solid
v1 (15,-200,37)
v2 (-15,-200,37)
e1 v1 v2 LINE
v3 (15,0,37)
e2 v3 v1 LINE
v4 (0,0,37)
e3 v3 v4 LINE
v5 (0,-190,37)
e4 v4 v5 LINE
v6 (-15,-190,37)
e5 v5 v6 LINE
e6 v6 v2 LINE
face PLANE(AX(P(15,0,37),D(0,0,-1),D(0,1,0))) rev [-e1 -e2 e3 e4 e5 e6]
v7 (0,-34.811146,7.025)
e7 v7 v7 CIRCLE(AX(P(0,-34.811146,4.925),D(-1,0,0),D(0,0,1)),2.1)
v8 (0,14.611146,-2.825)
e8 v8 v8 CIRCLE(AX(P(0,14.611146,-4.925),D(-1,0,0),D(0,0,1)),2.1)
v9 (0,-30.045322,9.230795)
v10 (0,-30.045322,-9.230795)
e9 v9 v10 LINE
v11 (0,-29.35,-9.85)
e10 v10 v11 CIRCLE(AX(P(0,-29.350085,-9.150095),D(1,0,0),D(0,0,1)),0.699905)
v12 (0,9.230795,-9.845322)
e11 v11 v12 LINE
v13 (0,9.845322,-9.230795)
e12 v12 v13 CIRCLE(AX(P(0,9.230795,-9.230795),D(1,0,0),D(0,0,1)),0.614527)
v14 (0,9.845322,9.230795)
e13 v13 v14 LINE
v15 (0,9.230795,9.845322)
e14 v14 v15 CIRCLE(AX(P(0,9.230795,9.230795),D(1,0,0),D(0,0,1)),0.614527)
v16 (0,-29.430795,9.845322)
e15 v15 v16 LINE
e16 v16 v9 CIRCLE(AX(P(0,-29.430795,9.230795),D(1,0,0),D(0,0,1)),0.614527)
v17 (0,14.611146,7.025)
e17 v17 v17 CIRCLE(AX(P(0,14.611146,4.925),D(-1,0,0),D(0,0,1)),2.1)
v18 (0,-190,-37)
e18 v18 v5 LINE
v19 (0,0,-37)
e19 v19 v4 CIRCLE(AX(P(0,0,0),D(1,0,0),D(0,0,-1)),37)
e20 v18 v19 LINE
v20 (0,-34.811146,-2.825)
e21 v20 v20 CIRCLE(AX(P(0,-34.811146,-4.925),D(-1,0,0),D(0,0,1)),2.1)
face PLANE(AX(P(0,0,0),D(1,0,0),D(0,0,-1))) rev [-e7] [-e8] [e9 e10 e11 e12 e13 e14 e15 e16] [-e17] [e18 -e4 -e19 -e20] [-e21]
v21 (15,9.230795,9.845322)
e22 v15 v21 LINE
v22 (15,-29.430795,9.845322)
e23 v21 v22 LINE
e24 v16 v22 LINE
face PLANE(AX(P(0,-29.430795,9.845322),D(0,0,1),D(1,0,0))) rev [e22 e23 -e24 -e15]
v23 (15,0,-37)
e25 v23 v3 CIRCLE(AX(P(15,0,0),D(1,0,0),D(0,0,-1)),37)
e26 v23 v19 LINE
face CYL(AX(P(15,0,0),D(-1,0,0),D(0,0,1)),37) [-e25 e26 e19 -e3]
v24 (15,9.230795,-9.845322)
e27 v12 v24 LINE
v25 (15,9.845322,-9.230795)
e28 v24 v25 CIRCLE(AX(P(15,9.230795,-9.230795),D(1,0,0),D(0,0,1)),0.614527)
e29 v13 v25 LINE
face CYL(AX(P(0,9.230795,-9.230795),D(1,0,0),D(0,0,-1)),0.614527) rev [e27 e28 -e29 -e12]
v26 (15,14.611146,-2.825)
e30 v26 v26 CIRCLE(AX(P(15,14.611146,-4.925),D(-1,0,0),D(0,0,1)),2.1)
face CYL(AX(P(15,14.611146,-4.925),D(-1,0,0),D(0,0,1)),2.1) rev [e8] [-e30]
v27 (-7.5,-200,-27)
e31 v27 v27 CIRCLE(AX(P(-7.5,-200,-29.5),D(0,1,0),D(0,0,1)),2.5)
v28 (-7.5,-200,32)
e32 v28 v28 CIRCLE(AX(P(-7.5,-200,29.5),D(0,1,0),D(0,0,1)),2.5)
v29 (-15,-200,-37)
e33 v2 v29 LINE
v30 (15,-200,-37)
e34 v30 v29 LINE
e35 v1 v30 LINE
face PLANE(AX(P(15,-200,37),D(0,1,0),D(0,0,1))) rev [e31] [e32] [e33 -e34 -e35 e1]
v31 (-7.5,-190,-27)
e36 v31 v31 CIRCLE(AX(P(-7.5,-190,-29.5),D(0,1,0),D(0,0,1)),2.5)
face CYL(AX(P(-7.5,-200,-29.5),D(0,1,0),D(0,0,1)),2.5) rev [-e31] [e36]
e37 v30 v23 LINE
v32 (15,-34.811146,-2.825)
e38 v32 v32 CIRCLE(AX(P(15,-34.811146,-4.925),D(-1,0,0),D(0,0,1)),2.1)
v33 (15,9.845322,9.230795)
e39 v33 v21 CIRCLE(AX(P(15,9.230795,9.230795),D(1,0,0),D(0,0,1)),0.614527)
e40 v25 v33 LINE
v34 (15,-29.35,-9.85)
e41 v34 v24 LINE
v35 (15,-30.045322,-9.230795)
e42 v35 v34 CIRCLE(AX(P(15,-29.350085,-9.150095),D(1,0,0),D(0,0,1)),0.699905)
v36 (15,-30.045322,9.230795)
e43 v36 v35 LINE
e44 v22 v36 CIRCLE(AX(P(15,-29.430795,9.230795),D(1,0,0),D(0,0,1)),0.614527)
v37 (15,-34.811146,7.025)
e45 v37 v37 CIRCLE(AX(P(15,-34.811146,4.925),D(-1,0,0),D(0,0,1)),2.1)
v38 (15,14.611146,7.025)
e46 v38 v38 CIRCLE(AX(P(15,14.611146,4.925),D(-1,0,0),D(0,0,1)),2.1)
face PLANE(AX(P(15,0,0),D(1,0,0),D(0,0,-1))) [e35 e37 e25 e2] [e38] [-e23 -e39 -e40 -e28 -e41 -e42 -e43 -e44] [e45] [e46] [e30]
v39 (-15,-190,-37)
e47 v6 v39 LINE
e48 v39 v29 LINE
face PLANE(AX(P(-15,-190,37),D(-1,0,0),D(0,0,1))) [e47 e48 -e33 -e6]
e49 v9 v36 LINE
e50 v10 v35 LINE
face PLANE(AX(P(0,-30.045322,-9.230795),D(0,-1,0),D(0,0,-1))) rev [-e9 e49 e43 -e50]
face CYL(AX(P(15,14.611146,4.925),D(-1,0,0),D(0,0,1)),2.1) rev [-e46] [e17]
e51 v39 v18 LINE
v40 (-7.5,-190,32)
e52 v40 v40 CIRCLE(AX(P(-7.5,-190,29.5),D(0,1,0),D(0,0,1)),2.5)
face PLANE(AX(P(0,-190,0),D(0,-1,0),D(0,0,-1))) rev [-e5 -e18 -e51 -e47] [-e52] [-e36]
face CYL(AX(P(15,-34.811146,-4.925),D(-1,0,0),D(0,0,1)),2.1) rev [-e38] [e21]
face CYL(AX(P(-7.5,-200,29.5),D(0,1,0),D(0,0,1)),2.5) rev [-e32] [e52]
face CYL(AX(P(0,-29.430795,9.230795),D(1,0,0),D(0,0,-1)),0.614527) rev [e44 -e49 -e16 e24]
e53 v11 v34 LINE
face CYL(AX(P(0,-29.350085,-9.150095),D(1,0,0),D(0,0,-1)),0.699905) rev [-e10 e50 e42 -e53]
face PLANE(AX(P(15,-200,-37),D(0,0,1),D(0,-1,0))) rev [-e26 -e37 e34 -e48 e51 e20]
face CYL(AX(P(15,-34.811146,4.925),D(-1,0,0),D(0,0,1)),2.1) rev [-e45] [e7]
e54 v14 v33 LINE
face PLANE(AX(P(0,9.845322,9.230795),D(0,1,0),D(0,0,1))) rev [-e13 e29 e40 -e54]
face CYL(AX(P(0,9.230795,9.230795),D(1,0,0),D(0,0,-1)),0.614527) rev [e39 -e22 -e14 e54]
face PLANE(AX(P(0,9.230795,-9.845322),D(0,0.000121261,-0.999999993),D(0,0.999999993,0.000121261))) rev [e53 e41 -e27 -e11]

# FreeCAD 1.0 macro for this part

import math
import FreeCAD as App
import Part
import Sketcher

V = App.Vector

doc = App.newDocument("Part")
body = doc.addObject("PartDesign::Body", "Body")

# Sketch on YZ plane
sketch1 = body.newObject("Sketcher::SketchObject", "Sketch")
sketch1.AttachmentSupport = (doc.getObject("YZ_Plane"), [""])
sketch1.MapMode = "FlatFace"
sketch1.addGeometry(Part.LineSegment(V(0, 37, 0), V(-200, 37, 0)), False)
sketch1.addGeometry(Part.LineSegment(V(-200, 37, 0), V(-200, -37, 0)), False)
sketch1.addGeometry(Part.LineSegment(V(-200, -37, 0), V(0, -37, 0)), False)
sketch1.addGeometry(Part.ArcOfCircle(Part.Circle(V(0, 0, 0), V(0, 0, 1), 37), math.radians(-90), math.radians(90)), False)
sketch1.addConstraint(Sketcher.Constraint("Coincident", 0, 2, 1, 1))
sketch1.addConstraint(Sketcher.Constraint("Coincident", 1, 2, 2, 1))
sketch1.addConstraint(Sketcher.Constraint("Tangent", 2, 2, 3, 1))
sketch1.addConstraint(Sketcher.Constraint("Tangent", 3, 2, 0, 1))
sketch1.addConstraint(Sketcher.Constraint("Horizontal", 0))
sketch1.addConstraint(Sketcher.Constraint("Vertical", 1))
sketch1.addConstraint(Sketcher.Constraint("Horizontal", 2))
sketch1.addConstraint(Sketcher.Constraint("Coincident", 3, 3, -1, 1))
sketch1.addConstraint(Sketcher.Constraint("Radius", 3, 37.0))
sketch1.addConstraint(Sketcher.Constraint("DistanceX", 0, 2, 0, 1, 200.0))
pad1 = body.newObject("PartDesign::Pad", "Pad")
pad1.Profile = sketch1
pad1.Length = 15

# Sketch on YZ plane
sketch2 = body.newObject("Sketcher::SketchObject", "Sketch001")
sketch2.AttachmentSupport = (doc.getObject("YZ_Plane"), [""])
sketch2.MapMode = "FlatFace"
sketch2.AttachmentOffset = App.Placement(V(0, 0, 15), App.Rotation())
sketch2.addGeometry(Part.LineSegment(V(-29.35, -9.85, 0), V(9.230795, -9.845322, 0)), False)
sketch2.addGeometry(Part.ArcOfCircle(Part.Circle(V(9.230795, -9.230795, 0), V(0, 0, 1), 0.614527), math.radians(-90), math.radians(0)), False)
sketch2.addGeometry(Part.LineSegment(V(9.845322, -9.230795, 0), V(9.845322, 9.230795, 0)), False)
sketch2.addGeometry(Part.ArcOfCircle(Part.Circle(V(9.230795, 9.230795, 0), V(0, 0, 1), 0.614527), math.radians(0), math.radians(90)), False)
sketch2.addGeometry(Part.LineSegment(V(9.230795, 9.845322, 0), V(-29.430795, 9.845322, 0)), False)
sketch2.addGeometry(Part.ArcOfCircle(Part.Circle(V(-29.430795, 9.230795, 0), V(0, 0, 1), 0.614527), math.radians(90), math.radians(180)), False)
sketch2.addGeometry(Part.LineSegment(V(-30.045322, 9.230795, 0), V(-30.045322, -9.230795, 0)), False)
sketch2.addGeometry(Part.ArcOfCircle(Part.Circle(V(-29.350085, -9.150095, 0), V(0, 0, 1), 0.699905), math.radians(-173.379035), math.radians(-89.993052)), False)
sketch2.addConstraint(Sketcher.Constraint("Coincident", 0, 2, 1, 1))
sketch2.addConstraint(Sketcher.Constraint("Tangent", 1, 2, 2, 1))
sketch2.addConstraint(Sketcher.Constraint("Tangent", 2, 2, 3, 1))
sketch2.addConstraint(Sketcher.Constraint("Tangent", 3, 2, 4, 1))
sketch2.addConstraint(Sketcher.Constraint("Tangent", 4, 2, 5, 1))
sketch2.addConstraint(Sketcher.Constraint("Tangent", 5, 2, 6, 1))
sketch2.addConstraint(Sketcher.Constraint("Coincident", 6, 2, 7, 1))
sketch2.addConstraint(Sketcher.Constraint("Tangent", 7, 2, 0, 1))
sketch2.addConstraint(Sketcher.Constraint("Vertical", 2))
sketch2.addConstraint(Sketcher.Constraint("Horizontal", 4))
sketch2.addConstraint(Sketcher.Constraint("Vertical", 6))
sketch2.addConstraint(Sketcher.Constraint("Equal", 1, 3))
sketch2.addConstraint(Sketcher.Constraint("Equal", 3, 5))
sketch2.addConstraint(Sketcher.Constraint("Symmetric", 0, 2, 3, 2, -1))
sketch2.addConstraint(Sketcher.Constraint("Horizontal", 1, 2, 6, 2))
sketch2.addConstraint(Sketcher.Constraint("DistanceX", 7, 2, -1, 1, 29.35))
sketch2.addConstraint(Sketcher.Constraint("DistanceY", 7, 2, -1, 1, 9.85))
sketch2.addConstraint(Sketcher.Constraint("Radius", 1, 0.614527))
sketch2.addConstraint(Sketcher.Constraint("Radius", 7, 0.699905))
sketch2.addConstraint(Sketcher.Constraint("DistanceX", 4, 2, 4, 1, 38.66159))
sketch2.addConstraint(Sketcher.Constraint("DistanceY", 2, 1, 2, 2, 18.46159))
pocket1 = body.newObject("PartDesign::Pocket", "Pocket")
pocket1.Profile = sketch2
pocket1.Length = 15

# Sketch on XZ plane
sketch3 = body.newObject("Sketcher::SketchObject", "Sketch002")
sketch3.AttachmentSupport = (doc.getObject("XZ_Plane"), [""])
sketch3.MapMode = "FlatFace"
sketch3.AttachmentOffset = App.Placement(V(0, 0, 200), App.Rotation())
sketch3.addGeometry(Part.LineSegment(V(-15, 37, 0), V(-15, -37, 0)), False)
sketch3.addGeometry(Part.LineSegment(V(-15, -37, 0), V(0, -37, 0)), False)
sketch3.addGeometry(Part.LineSegment(V(0, -37, 0), V(0, 37, 0)), False)
sketch3.addGeometry(Part.LineSegment(V(0, 37, 0), V(-15, 37, 0)), False)
sketch3.addConstraint(Sketcher.Constraint("Coincident", 0, 2, 1, 1))
sketch3.addConstraint(Sketcher.Constraint("Coincident", 1, 2, 2, 1))
sketch3.addConstraint(Sketcher.Constraint("Coincident", 2, 2, 3, 1))
sketch3.addConstraint(Sketcher.Constraint("Coincident", 3, 2, 0, 1))
sketch3.addConstraint(Sketcher.Constraint("Vertical", 0))
sketch3.addConstraint(Sketcher.Constraint("Horizontal", 1))
sketch3.addConstraint(Sketcher.Constraint("Vertical", 2))
sketch3.addConstraint(Sketcher.Constraint("Horizontal", 3))
sketch3.addConstraint(Sketcher.Constraint("Symmetric", 1, 2, 2, 2, -1, 1))
sketch3.addConstraint(Sketcher.Constraint("DistanceX", 1, 1, 1, 2, 15.0))
sketch3.addConstraint(Sketcher.Constraint("DistanceY", 0, 2, 0, 1, 74.0))
pad2 = body.newObject("PartDesign::Pad", "Pad001")
pad2.Profile = sketch3
pad2.Length = 10
pad2.Reversed = True

# Sketch on XZ plane
sketch4 = body.newObject("Sketcher::SketchObject", "Sketch003")
sketch4.AttachmentSupport = (doc.getObject("XZ_Plane"), [""])
sketch4.MapMode = "FlatFace"
sketch4.AttachmentOffset = App.Placement(V(0, 0, 190), App.Rotation())
sketch4.addGeometry(Part.Circle(V(-7.5, -29.5, 0), V(0, 0, 1), 2.5), False)
sketch4.addGeometry(Part.Circle(V(-7.5, 29.5, 0), V(0, 0, 1), 2.5), False)
sketch4.addConstraint(Sketcher.Constraint("Equal", 0, 1))
sketch4.addConstraint(Sketcher.Constraint("Symmetric", 0, 3, 1, 3, -1))
sketch4.addConstraint(Sketcher.Constraint("Diameter", 0, 5.0))
sketch4.addConstraint(Sketcher.Constraint("DistanceY", 0, 3, 1, 3, 59.0))
sketch4.addConstraint(Sketcher.Constraint("DistanceX", 0, 3, -1, 1, 7.5))
pocket2 = body.newObject("PartDesign::Pocket", "Pocket001")
pocket2.Profile = sketch4
pocket2.Length = 10
pocket2.Reversed = True

# Sketch on YZ plane
sketch5 = body.newObject("Sketcher::SketchObject", "Sketch004")
sketch5.AttachmentSupport = (doc.getObject("YZ_Plane"), [""])
sketch5.MapMode = "FlatFace"
sketch5.addGeometry(Part.Circle(V(14.611146, 4.925, 0), V(0, 0, 1), 2.1), False)
sketch5.addGeometry(Part.Circle(V(14.611146, -4.925, 0), V(0, 0, 1), 2.1), False)
sketch5.addGeometry(Part.Circle(V(-34.811146, 4.925, 0), V(0, 0, 1), 2.1), False)
sketch5.addGeometry(Part.Circle(V(-34.811146, -4.925, 0), V(0, 0, 1), 2.1), False)
sketch5.addConstraint(Sketcher.Constraint("Equal", 0, 1))
sketch5.addConstraint(Sketcher.Constraint("Equal", 1, 2))
sketch5.addConstraint(Sketcher.Constraint("Equal", 2, 3))
sketch5.addConstraint(Sketcher.Constraint("Symmetric", 0, 3, 1, 3, -1))
sketch5.addConstraint(Sketcher.Constraint("Symmetric", 2, 3, 3, 3, -1))
sketch5.addConstraint(Sketcher.Constraint("Horizontal", 0, 3, 2, 3))
sketch5.addConstraint(Sketcher.Constraint("Diameter", 0, 4.2))
sketch5.addConstraint(Sketcher.Constraint("DistanceY", 1, 3, 0, 3, 9.85))
sketch5.addConstraint(Sketcher.Constraint("DistanceX", 2, 3, 0, 3, 49.422291))
sketch5.addConstraint(Sketcher.Constraint("DistanceX", -1, 1, 0, 3, 14.611146))
pocket3 = body.newObject("PartDesign::Pocket", "Pocket002")
pocket3.Profile = sketch5
pocket3.Type = "ThroughAll"
pocket3.Reversed = True

doc.recompute()
